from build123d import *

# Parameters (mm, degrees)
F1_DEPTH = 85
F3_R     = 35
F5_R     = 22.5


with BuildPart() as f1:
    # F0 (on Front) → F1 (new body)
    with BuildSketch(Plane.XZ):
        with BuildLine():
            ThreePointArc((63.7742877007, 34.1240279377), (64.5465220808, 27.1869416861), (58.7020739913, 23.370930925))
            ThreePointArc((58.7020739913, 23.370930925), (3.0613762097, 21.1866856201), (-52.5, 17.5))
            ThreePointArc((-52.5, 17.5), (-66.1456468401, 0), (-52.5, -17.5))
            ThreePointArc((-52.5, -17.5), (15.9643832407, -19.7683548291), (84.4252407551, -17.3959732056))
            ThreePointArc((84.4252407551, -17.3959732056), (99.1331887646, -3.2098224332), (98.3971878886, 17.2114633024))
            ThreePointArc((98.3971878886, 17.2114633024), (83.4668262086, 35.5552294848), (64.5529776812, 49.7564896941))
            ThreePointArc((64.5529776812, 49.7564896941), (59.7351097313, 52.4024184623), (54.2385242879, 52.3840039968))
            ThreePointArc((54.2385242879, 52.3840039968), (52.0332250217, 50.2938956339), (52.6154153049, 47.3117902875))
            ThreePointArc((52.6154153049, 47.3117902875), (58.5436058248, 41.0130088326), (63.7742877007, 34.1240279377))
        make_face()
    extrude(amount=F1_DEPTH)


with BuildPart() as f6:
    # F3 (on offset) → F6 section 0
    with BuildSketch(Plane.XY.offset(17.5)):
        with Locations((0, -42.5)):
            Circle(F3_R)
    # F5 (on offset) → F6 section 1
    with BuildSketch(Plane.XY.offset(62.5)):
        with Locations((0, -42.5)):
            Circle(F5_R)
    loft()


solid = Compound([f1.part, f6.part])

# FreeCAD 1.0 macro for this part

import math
import FreeCAD as App
import Part
import Sketcher

V = App.Vector

doc = App.newDocument("Part")
params = doc.addObject("Spreadsheet::Sheet", "Params")
for row, (alias, value) in enumerate([
    ("pad1_length", "85 mm"),
    ("sketch2_diameter", "70 mm"),
    ("sketch3_diameter", "45 mm"),
], start=1):
    params.set(f"A{row}", alias)
    params.set(f"B{row}", "=" + value)
    params.setAlias(f"B{row}", alias)

body = doc.addObject("PartDesign::Body", "Body")

# Sketch on XZ plane
sketch1 = doc.addObject("Sketcher::SketchObject", "Sketch")
body.addObject(sketch1)
sketch1.AttachmentSupport = (doc.XZ_Plane, [""])
sketch1.MapMode = "FlatFace"
sketch1.addGeometry([
    Part.ArcOfCircle(Part.Circle(V(58.5, 30, 0), V(0, 0, 1), 6.7), math.radians(-88), math.radians(38)),  # 0
    Part.ArcOfCircle(Part.Circle(V(111.7, -2036.8, 0), V(0, 0, 1), 2060.9), math.radians(91.47), math.radians(94.57)),  # 1
    Part.ArcOfCircle(Part.Circle(V(-48.1, 0, 0), V(0, 0, 1), 18), math.radians(104), math.radians(256)),  # 2
    Part.ArcOfCircle(Part.Circle(V(15.2, 991.4, 0), V(0, 0, 1), 1011.2), math.radians(-93.84), math.radians(-86.07)),  # 3
    Part.ArcOfCircle(Part.Circle(V(75.9, 6.2, 0), V(0, 0, 1), 25.1), math.radians(-70), math.radians(26)),  # 4
    Part.ArcOfCircle(Part.Circle(V(16, -34.6, 0), V(0, 0, 1), 97.3), math.radians(32), math.radians(60)),  # 5
    Part.ArcOfCircle(Part.Circle(V(57, 41.8, 0), V(0, 0, 1), 11), math.radians(47), math.radians(105)),  # 6
    Part.ArcOfCircle(Part.Circle(V(55, 49.3, 0), V(0, 0, 1), 3.2), math.radians(105), math.radians(220)),  # 7
    Part.ArcOfCircle(Part.Circle(V(-4, -11.9, 0), V(0, 0, 1), 81.9), math.radians(34.18), math.radians(46.29)),  # 8
], False)
sketch1.addConstraint([
    Sketcher.Constraint("Coincident", 0, 1, 1, 1),
    Sketcher.Constraint("Coincident", 1, 2, 2, 1),
    Sketcher.Constraint("Coincident", 2, 2, 3, 1),
    Sketcher.Constraint("Coincident", 3, 2, 4, 1),
    Sketcher.Constraint("Coincident", 4, 2, 5, 1),
    Sketcher.Constraint("Coincident", 5, 2, 6, 1),
    Sketcher.Constraint("Coincident", 6, 2, 7, 1),
    Sketcher.Constraint("Coincident", 7, 2, 8, 2),
    Sketcher.Constraint("Coincident", 8, 1, 0, 2),
    Sketcher.Constraint("Symmetric", 1, 2, 2, 2, -1),
    Sketcher.Constraint("DistanceY", 2, 2, 1, 2, 35.0),
    Sketcher.Constraint("DistanceX", 2, 2, -1, 1, 52.5),
    Sketcher.Constraint("Radius", 0, 6.65945),
    Sketcher.Constraint("Radius", 2, 18.044351),
    Sketcher.Constraint("Radius", 4, 25.071631),
    Sketcher.Constraint("Radius", 5, 97.338629),
    Sketcher.Constraint("Radius", 8, 81.88445),
    Sketcher.Constraint("Radius", 1, 2060.877815),
    Sketcher.Constraint("Radius", 3, 1011.157582),
    Sketcher.Constraint("Radius", 6, 10.988735),
    Sketcher.Constraint("Radius", 7, 3.154337),
    Sketcher.Constraint("DistanceX", 2, 3, 0, 3, 106.6248),
    Sketcher.Constraint("DistanceX", 6, 3, 4, 3, 18.862298),
    Sketcher.Constraint("DistanceY", 0, 1, 7, 3, 25.961599),
    Sketcher.Constraint("DistanceY", 4, 2, 6, 3, 24.542301),
    Sketcher.Constraint("DistanceY", 4, 3, 5, 2, 43.5803),
    Sketcher.Constraint("DistanceY", 7, 2, 5, 2, 2.444699),
    Sketcher.Constraint("DistanceX", -1, 1, 4, 3, 75.884759),
    Sketcher.Constraint("DistanceY", -1, 1, 4, 3, 6.17619),
    Sketcher.Constraint("DistanceX", -1, 1, 7, 3, 55.037492),
    Sketcher.Constraint("DistanceY", -1, 1, 7, 3, 49.33253),
    Sketcher.Constraint("DistanceX", 8, 3, -1, 1, 3.965868),
    Sketcher.Constraint("DistanceX", 0, 3, 1, 3, 53.190919),
    Sketcher.Constraint("DistanceX", 3, 3, 0, 3, 43.327332),
    Sketcher.Constraint("DistanceY", 6, 3, 6, 2, 10.630239),
])
pad1 = doc.addObject("PartDesign::Pad", "Pad")
body.addObject(pad1)
pad1.Profile = sketch1
pad1.setExpression("Length", "Params.pad1_length")
body2 = doc.addObject("PartDesign::Body", "Body001")

# Sketch on XY plane
sketch2 = doc.addObject("Sketcher::SketchObject", "Sketch001")
body2.addObject(sketch2)
sketch2.AttachmentSupport = (doc.getObject("XY_Plane001"), [""])
sketch2.MapMode = "FlatFace"
sketch2.AttachmentOffset = App.Placement(V(0, 0, 17.5), App.Rotation())
sketch2.addGeometry(Part.Circle(V(0, -42, 0), V(0, 0, 1), 35), False)
sketch2.addConstraint([
    Sketcher.Constraint("PointOnObject", 0, 3, -2),
    Sketcher.Constraint("Diameter", 0, 70.0),
    Sketcher.Constraint("DistanceY", 0, 3, -1, 1, 42.5),
])
sketch2.setExpression("Constraints[1]", "Params.sketch2_diameter")

# Sketch on XY plane
sketch3 = doc.addObject("Sketcher::SketchObject", "Sketch002")
body2.addObject(sketch3)
sketch3.AttachmentSupport = (doc.getObject("XY_Plane001"), [""])
sketch3.MapMode = "FlatFace"
sketch3.AttachmentOffset = App.Placement(V(0, 0, 62.5), App.Rotation())
sketch3.addGeometry(Part.Circle(V(0, -42, 0), V(0, 0, 1), 22), False)
sketch3.addConstraint([
    Sketcher.Constraint("PointOnObject", 0, 3, -2),
    Sketcher.Constraint("Diameter", 0, 45.0),
    Sketcher.Constraint("DistanceY", 0, 3, -1, 1, 42.5),
])
sketch3.setExpression("Constraints[1]", "Params.sketch3_diameter")

additiveloft = doc.addObject("PartDesign::AdditiveLoft", "AdditiveLoft")
body2.addObject(additiveloft)
additiveloft.Profile = sketch2
additiveloft.Sections = [sketch3]

doc.recompute()
